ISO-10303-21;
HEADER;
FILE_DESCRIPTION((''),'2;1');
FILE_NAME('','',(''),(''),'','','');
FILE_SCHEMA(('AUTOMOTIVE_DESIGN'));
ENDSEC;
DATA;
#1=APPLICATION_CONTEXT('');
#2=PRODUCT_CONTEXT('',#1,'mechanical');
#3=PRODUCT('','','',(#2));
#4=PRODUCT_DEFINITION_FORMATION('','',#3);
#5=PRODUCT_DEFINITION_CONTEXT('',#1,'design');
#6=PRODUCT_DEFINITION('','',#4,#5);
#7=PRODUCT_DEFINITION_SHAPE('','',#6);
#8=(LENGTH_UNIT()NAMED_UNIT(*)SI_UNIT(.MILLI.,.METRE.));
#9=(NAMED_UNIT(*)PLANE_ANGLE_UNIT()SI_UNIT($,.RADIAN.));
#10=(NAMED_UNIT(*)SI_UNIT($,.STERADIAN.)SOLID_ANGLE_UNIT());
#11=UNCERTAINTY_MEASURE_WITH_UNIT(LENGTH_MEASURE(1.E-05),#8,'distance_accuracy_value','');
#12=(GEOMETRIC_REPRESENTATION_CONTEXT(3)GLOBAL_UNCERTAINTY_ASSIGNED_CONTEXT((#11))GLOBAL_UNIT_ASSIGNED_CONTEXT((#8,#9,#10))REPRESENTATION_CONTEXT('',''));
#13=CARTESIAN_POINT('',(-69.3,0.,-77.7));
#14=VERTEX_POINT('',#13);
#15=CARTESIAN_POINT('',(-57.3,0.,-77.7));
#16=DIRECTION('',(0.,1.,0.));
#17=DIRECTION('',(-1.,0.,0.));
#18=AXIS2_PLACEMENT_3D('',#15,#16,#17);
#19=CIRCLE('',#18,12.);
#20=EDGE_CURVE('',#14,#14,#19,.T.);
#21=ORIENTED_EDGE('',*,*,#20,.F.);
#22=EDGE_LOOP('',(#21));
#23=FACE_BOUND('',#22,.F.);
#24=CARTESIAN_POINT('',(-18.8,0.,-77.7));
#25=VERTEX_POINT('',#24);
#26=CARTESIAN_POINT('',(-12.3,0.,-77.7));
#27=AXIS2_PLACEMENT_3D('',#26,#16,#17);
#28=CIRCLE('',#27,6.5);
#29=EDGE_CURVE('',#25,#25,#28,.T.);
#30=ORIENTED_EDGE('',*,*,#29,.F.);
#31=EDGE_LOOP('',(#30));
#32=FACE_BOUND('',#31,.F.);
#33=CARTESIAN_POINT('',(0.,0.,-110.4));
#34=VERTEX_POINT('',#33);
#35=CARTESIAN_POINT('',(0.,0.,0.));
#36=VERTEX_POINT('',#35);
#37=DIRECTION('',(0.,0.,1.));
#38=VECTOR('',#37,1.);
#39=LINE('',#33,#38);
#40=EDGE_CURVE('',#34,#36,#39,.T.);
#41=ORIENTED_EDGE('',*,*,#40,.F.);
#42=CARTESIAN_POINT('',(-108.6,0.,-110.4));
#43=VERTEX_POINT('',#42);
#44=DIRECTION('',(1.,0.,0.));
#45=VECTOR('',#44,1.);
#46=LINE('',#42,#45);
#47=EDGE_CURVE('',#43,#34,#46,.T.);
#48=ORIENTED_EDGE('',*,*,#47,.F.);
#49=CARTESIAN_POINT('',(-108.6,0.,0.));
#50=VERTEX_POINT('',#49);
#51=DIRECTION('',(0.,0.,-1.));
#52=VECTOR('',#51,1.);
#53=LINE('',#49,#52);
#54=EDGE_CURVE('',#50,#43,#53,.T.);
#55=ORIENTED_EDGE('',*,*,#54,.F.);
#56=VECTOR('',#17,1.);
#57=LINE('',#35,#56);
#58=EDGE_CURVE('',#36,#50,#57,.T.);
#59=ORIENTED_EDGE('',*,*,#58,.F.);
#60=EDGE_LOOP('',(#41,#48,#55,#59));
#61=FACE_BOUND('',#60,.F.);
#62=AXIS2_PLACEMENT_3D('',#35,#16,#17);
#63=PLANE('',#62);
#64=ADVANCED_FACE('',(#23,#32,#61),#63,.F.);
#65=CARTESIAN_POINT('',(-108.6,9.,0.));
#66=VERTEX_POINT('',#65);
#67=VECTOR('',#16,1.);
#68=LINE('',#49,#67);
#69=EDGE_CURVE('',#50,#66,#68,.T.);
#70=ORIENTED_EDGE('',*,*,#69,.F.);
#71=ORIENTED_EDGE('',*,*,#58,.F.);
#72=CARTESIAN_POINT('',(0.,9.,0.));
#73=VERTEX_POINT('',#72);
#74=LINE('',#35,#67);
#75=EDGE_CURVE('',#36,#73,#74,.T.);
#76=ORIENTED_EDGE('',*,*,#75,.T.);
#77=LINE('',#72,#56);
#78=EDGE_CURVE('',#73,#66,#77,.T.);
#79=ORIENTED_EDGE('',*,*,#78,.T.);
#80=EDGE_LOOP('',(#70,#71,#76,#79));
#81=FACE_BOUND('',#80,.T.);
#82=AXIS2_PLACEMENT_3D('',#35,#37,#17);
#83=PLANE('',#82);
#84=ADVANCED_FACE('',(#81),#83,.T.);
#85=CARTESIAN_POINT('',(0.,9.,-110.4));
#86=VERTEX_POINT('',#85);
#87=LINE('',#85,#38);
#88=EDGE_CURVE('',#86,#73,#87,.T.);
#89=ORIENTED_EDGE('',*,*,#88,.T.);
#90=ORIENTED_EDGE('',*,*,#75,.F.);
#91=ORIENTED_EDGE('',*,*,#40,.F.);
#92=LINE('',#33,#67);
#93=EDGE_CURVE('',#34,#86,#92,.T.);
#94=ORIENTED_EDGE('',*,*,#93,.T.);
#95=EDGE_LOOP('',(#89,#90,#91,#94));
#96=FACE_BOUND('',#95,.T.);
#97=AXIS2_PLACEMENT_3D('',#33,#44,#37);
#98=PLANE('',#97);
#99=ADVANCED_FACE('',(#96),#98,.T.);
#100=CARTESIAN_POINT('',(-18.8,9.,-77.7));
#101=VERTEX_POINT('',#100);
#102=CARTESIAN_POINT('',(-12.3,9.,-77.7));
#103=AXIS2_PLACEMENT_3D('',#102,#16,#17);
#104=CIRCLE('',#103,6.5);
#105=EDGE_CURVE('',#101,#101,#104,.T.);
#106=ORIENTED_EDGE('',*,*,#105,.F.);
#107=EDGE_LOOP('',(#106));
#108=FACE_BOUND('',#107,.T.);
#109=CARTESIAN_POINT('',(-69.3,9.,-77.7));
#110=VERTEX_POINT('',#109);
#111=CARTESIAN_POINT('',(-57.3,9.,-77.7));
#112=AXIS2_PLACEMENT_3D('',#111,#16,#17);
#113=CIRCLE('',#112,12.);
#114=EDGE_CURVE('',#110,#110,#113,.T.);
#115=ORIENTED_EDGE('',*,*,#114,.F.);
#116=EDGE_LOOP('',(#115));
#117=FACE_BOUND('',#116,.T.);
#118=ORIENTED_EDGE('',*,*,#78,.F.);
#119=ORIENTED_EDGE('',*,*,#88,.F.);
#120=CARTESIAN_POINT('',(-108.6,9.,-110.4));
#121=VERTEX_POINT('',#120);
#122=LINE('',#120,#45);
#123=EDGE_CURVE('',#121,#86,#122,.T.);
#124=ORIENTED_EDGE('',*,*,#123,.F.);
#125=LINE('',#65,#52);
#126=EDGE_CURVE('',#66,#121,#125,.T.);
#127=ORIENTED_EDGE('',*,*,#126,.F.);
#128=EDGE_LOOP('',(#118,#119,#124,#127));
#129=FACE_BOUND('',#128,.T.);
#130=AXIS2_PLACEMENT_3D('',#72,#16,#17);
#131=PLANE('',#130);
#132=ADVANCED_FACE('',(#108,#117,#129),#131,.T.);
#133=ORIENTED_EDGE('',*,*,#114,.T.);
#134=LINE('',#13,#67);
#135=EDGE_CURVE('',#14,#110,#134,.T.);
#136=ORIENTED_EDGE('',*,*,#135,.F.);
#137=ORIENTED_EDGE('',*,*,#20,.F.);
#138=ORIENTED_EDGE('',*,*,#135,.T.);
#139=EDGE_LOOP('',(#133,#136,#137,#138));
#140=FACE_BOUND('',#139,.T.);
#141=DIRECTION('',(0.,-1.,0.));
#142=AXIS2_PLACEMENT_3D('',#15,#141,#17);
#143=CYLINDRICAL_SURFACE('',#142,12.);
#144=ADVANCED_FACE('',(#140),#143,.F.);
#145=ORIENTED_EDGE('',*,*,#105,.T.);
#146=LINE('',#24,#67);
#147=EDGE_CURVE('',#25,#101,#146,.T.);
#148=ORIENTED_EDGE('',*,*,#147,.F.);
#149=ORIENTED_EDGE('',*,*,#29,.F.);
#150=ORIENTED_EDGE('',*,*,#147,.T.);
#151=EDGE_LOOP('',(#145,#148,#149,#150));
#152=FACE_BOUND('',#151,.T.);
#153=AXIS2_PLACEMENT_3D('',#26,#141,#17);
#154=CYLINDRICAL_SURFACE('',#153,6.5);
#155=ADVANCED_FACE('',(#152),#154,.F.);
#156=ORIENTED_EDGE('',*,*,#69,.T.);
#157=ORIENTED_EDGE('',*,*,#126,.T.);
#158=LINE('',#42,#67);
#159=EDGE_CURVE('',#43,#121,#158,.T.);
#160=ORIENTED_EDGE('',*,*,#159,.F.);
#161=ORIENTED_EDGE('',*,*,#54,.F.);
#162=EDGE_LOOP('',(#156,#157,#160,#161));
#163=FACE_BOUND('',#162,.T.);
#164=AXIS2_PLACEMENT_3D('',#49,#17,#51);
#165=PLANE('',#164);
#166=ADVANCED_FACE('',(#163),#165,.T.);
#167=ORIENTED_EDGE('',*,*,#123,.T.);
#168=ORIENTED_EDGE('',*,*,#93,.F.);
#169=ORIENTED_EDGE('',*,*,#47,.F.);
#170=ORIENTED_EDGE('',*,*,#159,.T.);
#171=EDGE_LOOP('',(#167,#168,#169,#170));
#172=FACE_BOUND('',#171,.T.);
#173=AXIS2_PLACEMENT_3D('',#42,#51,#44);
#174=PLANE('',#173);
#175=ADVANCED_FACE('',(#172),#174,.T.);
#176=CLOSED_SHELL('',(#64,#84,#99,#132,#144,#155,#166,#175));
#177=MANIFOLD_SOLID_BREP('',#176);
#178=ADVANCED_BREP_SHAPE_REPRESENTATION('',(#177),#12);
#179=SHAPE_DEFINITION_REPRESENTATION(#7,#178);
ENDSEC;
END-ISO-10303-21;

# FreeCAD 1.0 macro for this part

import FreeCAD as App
import Part
import Sketcher

doc = App.newDocument("Part")
body = doc.addObject("PartDesign::Body", "Body")

# Sketch on XZ plane
sketch1 = body.newObject("Sketcher::SketchObject", "Sketch")
sketch1.AttachmentSupport = (doc.getObject("XZ_Plane"), [""])
sketch1.MapMode = "FlatFace"
sketch1.addGeometry(Part.LineSegment(App.Vector(-109, 0, 0), App.Vector(0, 0, 0)), False)
sketch1.addGeometry(Part.LineSegment(App.Vector(0, 0, 0), App.Vector(0, -110, 0)), False)
sketch1.addGeometry(Part.LineSegment(App.Vector(0, -110, 0), App.Vector(-109, -110, 0)), False)
sketch1.addGeometry(Part.LineSegment(App.Vector(-109, -110, 0), App.Vector(-109, 0, 0)), False)
sketch1.addGeometry(Part.Circle(App.Vector(-12, -78, 0), App.Vector(0, 0, 1), 6), False)
sketch1.addGeometry(Part.Circle(App.Vector(-57, -78, 0), App.Vector(0, 0, 1), 12), False)
sketch1.addConstraint(Sketcher.Constraint("Coincident", 0, 2, 1, 1))
sketch1.addConstraint(Sketcher.Constraint("Coincident", 1, 2, 2, 1))
sketch1.addConstraint(Sketcher.Constraint("Coincident", 2, 2, 3, 1))
sketch1.addConstraint(Sketcher.Constraint("Coincident", 3, 2, 0, 1))
sketch1.addConstraint(Sketcher.Constraint("Horizontal", 0))
sketch1.addConstraint(Sketcher.Constraint("Vertical", 1))
sketch1.addConstraint(Sketcher.Constraint("Horizontal", 2))
sketch1.addConstraint(Sketcher.Constraint("Vertical", 3))
sketch1.addConstraint(Sketcher.Constraint("Coincident", 0, 2, -1, 1))
sketch1.addConstraint(Sketcher.Constraint("Horizontal", 4, 3, 5, 3))
sketch1.addConstraint(Sketcher.Constraint("Diameter", 4, 13.0))
sketch1.addConstraint(Sketcher.Constraint("Diameter", 5, 24.0))
sketch1.addConstraint(Sketcher.Constraint("DistanceX", 0, 1, 0, 2, 108.6))
sketch1.addConstraint(Sketcher.Constraint("DistanceY", 1, 2, 1, 1, 110.4))
sketch1.addConstraint(Sketcher.Constraint("DistanceX", 5, 3, 4, 3, 45.0))
sketch1.addConstraint(Sketcher.Constraint("DistanceX", 4, 3, -1, 1, 12.3))
sketch1.addConstraint(Sketcher.Constraint("DistanceY", 1, 2, 4, 3, 32.7))
pad1 = body.newObject("PartDesign::Pad", "Pad")
pad1.Profile = sketch1
pad1.Length = 9
pad1.Reversed = True

doc.recompute()
